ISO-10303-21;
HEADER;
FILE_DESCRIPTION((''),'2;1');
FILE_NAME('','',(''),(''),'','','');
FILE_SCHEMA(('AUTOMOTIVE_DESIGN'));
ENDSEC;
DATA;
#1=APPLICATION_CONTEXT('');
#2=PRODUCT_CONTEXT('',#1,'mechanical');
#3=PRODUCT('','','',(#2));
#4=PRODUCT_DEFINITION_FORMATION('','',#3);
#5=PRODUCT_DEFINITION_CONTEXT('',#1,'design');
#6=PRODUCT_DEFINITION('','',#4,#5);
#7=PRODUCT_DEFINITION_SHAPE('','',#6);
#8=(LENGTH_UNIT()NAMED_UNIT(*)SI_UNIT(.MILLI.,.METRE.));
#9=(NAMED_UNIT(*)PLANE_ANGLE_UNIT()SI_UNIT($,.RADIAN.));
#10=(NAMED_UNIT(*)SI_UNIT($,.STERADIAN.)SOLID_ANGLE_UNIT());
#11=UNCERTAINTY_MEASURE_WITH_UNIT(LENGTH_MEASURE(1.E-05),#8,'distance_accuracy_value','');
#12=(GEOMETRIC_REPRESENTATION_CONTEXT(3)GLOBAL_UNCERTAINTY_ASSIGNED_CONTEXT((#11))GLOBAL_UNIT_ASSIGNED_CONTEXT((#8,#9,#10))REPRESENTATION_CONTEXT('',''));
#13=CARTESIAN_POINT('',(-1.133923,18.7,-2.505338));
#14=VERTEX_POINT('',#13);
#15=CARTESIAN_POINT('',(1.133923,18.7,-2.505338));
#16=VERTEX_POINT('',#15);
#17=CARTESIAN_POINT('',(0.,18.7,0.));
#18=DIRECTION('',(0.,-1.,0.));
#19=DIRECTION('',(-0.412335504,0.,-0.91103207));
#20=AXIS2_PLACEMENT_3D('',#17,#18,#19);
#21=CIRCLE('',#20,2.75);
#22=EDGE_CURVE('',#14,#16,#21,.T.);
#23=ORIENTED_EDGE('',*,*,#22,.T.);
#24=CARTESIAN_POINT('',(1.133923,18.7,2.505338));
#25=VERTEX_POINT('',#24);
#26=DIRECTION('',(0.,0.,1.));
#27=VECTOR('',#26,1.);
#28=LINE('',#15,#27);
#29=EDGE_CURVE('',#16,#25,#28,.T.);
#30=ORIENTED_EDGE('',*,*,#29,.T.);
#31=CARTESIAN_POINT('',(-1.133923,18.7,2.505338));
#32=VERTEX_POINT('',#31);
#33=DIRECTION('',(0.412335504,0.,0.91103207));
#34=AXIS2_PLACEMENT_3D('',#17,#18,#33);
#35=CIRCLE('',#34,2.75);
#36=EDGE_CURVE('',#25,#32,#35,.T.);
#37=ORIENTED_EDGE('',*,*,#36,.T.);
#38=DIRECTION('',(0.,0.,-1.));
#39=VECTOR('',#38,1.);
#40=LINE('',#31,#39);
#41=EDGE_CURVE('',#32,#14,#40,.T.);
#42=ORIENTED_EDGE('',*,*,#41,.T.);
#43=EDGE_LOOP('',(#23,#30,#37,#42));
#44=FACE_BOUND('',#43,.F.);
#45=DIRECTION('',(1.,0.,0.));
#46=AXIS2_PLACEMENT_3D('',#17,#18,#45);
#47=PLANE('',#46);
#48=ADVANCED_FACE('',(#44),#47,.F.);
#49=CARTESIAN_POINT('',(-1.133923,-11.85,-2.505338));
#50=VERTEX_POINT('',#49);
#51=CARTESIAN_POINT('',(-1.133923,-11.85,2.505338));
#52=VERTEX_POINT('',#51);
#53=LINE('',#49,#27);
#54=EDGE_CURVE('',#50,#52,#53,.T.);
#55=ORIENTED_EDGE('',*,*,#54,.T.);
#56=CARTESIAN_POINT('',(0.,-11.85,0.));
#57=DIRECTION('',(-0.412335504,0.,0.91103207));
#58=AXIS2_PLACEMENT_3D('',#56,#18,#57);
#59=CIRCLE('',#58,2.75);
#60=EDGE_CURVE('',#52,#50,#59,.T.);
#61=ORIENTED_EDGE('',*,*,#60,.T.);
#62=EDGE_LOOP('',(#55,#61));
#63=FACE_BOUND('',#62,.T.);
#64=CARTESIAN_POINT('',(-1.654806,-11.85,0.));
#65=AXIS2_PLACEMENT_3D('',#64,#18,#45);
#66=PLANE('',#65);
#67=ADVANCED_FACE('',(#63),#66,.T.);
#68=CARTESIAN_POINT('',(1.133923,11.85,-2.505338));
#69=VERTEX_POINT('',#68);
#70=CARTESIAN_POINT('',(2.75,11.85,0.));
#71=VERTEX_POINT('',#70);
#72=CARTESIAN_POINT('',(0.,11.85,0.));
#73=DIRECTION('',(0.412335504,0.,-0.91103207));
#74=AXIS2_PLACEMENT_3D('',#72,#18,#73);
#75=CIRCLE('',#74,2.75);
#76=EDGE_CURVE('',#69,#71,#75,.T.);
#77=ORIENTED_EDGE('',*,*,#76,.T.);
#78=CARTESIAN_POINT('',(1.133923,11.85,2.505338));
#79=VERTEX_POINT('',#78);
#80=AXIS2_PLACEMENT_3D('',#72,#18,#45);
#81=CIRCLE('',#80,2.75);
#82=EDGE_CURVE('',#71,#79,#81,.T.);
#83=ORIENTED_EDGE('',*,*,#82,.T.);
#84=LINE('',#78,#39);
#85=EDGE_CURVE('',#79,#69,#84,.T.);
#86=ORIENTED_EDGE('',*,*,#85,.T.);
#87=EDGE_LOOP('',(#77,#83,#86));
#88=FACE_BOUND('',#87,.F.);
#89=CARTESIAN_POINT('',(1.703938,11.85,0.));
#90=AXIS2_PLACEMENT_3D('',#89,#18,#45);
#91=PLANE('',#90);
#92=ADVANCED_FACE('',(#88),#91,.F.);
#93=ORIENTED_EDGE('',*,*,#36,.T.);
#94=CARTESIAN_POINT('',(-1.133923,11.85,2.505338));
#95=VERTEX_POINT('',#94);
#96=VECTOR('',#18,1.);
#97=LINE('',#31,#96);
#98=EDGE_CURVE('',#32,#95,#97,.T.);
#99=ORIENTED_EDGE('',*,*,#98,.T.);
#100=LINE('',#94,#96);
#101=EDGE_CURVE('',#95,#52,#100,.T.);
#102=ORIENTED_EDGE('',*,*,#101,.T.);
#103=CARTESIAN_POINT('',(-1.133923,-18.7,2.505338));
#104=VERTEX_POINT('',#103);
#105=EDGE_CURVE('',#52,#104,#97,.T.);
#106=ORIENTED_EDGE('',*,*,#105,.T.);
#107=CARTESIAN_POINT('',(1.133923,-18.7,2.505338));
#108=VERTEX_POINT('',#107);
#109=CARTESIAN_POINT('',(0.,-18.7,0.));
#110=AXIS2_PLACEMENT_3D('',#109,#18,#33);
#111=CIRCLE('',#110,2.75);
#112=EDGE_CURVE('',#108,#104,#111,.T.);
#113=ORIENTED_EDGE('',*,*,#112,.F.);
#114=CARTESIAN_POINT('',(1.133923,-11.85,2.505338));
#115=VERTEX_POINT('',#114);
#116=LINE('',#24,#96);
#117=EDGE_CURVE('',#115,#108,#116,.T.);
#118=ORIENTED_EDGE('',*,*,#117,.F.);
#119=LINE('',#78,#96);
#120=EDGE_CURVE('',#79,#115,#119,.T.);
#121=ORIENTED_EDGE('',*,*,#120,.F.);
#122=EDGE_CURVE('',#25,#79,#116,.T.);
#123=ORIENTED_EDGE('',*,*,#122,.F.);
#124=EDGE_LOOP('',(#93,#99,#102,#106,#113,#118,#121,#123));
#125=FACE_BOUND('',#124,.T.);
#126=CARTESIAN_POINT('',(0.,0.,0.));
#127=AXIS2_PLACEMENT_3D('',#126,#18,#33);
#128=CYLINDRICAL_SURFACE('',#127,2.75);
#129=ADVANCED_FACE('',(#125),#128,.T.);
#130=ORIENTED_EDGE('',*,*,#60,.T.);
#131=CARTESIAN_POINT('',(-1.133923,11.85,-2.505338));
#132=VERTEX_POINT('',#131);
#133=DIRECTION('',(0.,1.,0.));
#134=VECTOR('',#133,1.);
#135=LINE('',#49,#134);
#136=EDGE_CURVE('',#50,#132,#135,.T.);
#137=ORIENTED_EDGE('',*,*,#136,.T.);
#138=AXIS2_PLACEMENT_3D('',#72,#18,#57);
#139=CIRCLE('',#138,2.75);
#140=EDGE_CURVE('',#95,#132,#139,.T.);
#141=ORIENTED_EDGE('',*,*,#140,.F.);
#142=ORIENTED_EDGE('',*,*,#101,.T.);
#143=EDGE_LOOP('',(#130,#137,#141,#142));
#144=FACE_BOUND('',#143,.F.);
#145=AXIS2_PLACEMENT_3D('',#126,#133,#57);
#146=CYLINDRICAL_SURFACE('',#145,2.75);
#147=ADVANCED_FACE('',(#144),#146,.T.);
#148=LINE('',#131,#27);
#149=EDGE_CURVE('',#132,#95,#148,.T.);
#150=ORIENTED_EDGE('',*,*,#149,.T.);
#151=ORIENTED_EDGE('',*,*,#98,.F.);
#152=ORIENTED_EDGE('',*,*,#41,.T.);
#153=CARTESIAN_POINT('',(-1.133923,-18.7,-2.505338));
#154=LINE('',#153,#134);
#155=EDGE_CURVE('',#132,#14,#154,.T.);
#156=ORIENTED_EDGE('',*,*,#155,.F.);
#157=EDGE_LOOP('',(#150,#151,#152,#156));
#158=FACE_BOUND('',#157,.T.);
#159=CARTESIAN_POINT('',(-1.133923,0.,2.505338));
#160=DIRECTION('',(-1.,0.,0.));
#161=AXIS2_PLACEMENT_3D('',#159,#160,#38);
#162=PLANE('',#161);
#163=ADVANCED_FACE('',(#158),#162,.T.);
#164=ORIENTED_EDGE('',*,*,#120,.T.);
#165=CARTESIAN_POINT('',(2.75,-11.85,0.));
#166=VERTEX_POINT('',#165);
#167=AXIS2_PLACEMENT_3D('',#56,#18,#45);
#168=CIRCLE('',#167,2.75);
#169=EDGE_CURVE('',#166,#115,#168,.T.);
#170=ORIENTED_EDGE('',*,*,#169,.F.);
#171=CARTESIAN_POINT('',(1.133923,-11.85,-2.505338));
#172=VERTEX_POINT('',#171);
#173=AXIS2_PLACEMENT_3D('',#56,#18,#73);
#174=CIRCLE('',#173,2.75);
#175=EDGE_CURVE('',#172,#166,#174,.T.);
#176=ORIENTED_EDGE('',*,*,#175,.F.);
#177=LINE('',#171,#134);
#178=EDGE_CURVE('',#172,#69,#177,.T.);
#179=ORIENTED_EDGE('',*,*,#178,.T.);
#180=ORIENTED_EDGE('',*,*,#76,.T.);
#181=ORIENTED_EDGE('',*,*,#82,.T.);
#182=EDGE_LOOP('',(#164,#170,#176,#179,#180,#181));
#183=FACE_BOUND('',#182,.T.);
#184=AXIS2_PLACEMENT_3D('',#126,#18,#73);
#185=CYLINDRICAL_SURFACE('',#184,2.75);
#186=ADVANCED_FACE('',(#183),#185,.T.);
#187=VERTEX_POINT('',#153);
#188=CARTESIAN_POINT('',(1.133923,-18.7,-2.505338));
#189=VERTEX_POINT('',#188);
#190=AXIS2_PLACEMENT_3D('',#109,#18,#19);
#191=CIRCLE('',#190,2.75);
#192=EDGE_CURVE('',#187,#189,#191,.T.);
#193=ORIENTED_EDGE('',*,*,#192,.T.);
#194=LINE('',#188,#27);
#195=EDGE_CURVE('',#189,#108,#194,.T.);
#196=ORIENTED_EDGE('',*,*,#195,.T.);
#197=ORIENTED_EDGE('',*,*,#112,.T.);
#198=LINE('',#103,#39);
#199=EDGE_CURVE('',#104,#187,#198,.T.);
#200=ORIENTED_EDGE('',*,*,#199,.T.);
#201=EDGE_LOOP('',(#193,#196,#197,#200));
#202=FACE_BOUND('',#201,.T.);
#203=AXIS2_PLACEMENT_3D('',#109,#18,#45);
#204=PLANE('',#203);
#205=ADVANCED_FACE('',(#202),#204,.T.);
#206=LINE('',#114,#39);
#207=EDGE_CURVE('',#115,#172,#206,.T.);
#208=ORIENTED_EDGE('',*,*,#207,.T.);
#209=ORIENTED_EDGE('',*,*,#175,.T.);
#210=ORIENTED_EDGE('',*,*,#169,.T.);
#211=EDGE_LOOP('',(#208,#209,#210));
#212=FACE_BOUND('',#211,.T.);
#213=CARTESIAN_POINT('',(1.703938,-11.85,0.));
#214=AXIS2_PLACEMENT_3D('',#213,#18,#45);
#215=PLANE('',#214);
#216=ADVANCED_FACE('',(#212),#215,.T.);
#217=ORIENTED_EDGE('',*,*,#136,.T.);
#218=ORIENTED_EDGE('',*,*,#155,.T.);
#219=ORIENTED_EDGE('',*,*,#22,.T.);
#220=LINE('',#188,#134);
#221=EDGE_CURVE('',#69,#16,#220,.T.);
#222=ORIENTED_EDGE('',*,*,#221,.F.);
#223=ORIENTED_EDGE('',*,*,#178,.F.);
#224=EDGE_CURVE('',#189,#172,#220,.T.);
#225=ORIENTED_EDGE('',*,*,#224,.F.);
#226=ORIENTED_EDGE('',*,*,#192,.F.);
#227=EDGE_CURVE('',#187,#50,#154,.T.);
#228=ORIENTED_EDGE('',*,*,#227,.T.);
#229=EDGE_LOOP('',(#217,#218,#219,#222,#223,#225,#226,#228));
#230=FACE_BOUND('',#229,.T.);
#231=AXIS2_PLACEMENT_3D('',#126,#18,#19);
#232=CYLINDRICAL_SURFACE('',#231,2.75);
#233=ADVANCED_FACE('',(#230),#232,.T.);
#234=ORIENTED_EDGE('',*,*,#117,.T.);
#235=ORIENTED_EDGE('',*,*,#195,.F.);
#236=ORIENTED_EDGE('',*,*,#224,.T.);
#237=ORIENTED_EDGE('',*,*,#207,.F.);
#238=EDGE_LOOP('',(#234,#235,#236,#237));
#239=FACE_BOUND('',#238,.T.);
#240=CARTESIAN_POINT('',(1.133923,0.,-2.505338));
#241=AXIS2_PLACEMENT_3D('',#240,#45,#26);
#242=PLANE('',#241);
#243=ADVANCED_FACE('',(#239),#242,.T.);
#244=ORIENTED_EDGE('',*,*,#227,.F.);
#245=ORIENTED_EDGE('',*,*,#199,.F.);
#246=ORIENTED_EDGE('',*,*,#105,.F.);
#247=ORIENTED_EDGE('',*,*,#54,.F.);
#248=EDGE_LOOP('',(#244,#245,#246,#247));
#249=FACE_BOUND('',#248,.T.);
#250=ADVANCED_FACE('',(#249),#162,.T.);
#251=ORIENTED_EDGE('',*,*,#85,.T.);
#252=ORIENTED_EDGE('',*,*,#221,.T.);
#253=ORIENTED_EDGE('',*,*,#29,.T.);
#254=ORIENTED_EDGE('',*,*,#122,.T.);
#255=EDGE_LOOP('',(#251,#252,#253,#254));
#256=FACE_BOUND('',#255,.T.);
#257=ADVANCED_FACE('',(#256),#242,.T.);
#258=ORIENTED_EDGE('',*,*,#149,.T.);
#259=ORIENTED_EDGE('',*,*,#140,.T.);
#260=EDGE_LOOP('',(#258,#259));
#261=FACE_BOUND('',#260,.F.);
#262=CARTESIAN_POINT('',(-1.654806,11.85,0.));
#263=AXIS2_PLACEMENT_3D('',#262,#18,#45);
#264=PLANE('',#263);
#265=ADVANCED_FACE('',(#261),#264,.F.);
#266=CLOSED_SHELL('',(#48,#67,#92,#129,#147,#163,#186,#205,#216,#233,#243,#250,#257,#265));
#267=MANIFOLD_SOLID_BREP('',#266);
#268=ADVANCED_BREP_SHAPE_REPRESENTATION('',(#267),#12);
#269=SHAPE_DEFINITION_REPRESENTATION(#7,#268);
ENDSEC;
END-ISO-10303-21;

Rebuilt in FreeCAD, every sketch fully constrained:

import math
import FreeCAD as App
import Part
import Sketcher
Q = App.Units.Quantity

doc = App.newDocument("Part")
body = doc.addObject("PartDesign::Body", "Body")

sketch1 = doc.addObject("Sketcher::SketchObject", "Sketch")
body.addObject(sketch1)
sketch1.AttachmentSupport = (doc.XZ_Plane, [""])
sketch1.MapMode = "FlatFace"
sketch1.addGeometry([
    Part.LineSegment(App.Vector(1.1, -2.5, 0), App.Vector(1.1, 2.5, 0)),
    Part.ArcOfCircle(Part.Circle(App.Vector(0, 0, 0), App.Vector(0, 0, 1), 2.8), math.radians(66), math.radians(114)),
    Part.LineSegment(App.Vector(-1.1, 2.5, 0), App.Vector(-1.1, -2.5, 0)),
    Part.ArcOfCircle(Part.Circle(App.Vector(0, 0, 0), App.Vector(0, 0, 1), 2.8), math.radians(-114), math.radians(-66)),
], False)
sketch1.addConstraint([
    Sketcher.Constraint("Coincident", 0, 2, 1, 1),
    Sketcher.Constraint("Coincident", 1, 2, 2, 1),
    Sketcher.Constraint("Coincident", 2, 2, 3, 1),
    Sketcher.Constraint("Coincident", 3, 2, 0, 1),
    Sketcher.Constraint("Vertical", 0),
    Sketcher.Constraint("Vertical", 2),
    Sketcher.Constraint("Coincident", 1, 3, -1, 1),
    Sketcher.Constraint("Coincident", 3, 3, -1, 1),
    Sketcher.Constraint("Equal", 1, 3),
    Sketcher.Constraint("Horizontal", 0, 2, 1, 2),
    Sketcher.Constraint("Radius", 1, Q("2.75 mm")),
    Sketcher.Constraint("DistanceY", 0, 1, 0, 2, Q("5.010676 mm")),
])
pad1 = doc.addObject("PartDesign::Pad", "Pad")
body.addObject(pad1)
pad1.Profile = sketch1
pad1.Length = 37.4
pad1.Midplane = True

sketch2 = doc.addObject("Sketcher::SketchObject", "Sketch001")
body.addObject(sketch2)
sketch2.AttachmentSupport = (doc.XZ_Plane, [""])
sketch2.MapMode = "FlatFace"
sketch2.addGeometry([
    Part.LineSegment(App.Vector(-1.1, -2.5, 0), App.Vector(-1.1, 2.5, 0)),
    Part.ArcOfCircle(Part.Circle(App.Vector(0, 0, 0), App.Vector(0, 0, 1), 2.8), math.radians(114), math.radians(246)),
    Part.ArcOfCircle(Part.Circle(App.Vector(0, 0, 0), App.Vector(0, 0, 1), 2.8), math.radians(-66), math.radians(0)),
    Part.ArcOfCircle(Part.Circle(App.Vector(0, 0, 0), App.Vector(0, 0, 1), 2.8), math.radians(0), math.radians(66)),
    Part.LineSegment(App.Vector(1.1, 2.5, 0), App.Vector(1.1, -2.5, 0)),
], False)
sketch2.addConstraint([
    Sketcher.Constraint("Coincident", 0, 1, 1, 2),
    Sketcher.Constraint("Coincident", 1, 1, 0, 2),
    Sketcher.Constraint("Tangent", 2, 2, 3, 1),
    Sketcher.Constraint("Coincident", 3, 2, 4, 1),
    Sketcher.Constraint("Coincident", 4, 2, 2, 1),
    Sketcher.Constraint("Vertical", 0),
    Sketcher.Constraint("Vertical", 4),
    Sketcher.Constraint("Coincident", 1, 3, -1, 1),
    Sketcher.Constraint("Coincident", 2, 3, -1, 1),
    Sketcher.Constraint("Equal", 1, 2),
    Sketcher.Constraint("Equal", 2, 3),
    Sketcher.Constraint("PointOnObject", 2, 2, -1),
    Sketcher.Constraint("Horizontal", 1, 1, 3, 2),
    Sketcher.Constraint("Radius", 1, Q("2.75 mm")),
    Sketcher.Constraint("DistanceY", 0, 1, 0, 2, Q("5.010676 mm")),
])
pad2 = doc.addObject("PartDesign::Pad", "Pad001")
body.addObject(pad2)
pad2.Profile = sketch2
pad2.Length = 23.7
pad2.Midplane = True

doc.recompute()
